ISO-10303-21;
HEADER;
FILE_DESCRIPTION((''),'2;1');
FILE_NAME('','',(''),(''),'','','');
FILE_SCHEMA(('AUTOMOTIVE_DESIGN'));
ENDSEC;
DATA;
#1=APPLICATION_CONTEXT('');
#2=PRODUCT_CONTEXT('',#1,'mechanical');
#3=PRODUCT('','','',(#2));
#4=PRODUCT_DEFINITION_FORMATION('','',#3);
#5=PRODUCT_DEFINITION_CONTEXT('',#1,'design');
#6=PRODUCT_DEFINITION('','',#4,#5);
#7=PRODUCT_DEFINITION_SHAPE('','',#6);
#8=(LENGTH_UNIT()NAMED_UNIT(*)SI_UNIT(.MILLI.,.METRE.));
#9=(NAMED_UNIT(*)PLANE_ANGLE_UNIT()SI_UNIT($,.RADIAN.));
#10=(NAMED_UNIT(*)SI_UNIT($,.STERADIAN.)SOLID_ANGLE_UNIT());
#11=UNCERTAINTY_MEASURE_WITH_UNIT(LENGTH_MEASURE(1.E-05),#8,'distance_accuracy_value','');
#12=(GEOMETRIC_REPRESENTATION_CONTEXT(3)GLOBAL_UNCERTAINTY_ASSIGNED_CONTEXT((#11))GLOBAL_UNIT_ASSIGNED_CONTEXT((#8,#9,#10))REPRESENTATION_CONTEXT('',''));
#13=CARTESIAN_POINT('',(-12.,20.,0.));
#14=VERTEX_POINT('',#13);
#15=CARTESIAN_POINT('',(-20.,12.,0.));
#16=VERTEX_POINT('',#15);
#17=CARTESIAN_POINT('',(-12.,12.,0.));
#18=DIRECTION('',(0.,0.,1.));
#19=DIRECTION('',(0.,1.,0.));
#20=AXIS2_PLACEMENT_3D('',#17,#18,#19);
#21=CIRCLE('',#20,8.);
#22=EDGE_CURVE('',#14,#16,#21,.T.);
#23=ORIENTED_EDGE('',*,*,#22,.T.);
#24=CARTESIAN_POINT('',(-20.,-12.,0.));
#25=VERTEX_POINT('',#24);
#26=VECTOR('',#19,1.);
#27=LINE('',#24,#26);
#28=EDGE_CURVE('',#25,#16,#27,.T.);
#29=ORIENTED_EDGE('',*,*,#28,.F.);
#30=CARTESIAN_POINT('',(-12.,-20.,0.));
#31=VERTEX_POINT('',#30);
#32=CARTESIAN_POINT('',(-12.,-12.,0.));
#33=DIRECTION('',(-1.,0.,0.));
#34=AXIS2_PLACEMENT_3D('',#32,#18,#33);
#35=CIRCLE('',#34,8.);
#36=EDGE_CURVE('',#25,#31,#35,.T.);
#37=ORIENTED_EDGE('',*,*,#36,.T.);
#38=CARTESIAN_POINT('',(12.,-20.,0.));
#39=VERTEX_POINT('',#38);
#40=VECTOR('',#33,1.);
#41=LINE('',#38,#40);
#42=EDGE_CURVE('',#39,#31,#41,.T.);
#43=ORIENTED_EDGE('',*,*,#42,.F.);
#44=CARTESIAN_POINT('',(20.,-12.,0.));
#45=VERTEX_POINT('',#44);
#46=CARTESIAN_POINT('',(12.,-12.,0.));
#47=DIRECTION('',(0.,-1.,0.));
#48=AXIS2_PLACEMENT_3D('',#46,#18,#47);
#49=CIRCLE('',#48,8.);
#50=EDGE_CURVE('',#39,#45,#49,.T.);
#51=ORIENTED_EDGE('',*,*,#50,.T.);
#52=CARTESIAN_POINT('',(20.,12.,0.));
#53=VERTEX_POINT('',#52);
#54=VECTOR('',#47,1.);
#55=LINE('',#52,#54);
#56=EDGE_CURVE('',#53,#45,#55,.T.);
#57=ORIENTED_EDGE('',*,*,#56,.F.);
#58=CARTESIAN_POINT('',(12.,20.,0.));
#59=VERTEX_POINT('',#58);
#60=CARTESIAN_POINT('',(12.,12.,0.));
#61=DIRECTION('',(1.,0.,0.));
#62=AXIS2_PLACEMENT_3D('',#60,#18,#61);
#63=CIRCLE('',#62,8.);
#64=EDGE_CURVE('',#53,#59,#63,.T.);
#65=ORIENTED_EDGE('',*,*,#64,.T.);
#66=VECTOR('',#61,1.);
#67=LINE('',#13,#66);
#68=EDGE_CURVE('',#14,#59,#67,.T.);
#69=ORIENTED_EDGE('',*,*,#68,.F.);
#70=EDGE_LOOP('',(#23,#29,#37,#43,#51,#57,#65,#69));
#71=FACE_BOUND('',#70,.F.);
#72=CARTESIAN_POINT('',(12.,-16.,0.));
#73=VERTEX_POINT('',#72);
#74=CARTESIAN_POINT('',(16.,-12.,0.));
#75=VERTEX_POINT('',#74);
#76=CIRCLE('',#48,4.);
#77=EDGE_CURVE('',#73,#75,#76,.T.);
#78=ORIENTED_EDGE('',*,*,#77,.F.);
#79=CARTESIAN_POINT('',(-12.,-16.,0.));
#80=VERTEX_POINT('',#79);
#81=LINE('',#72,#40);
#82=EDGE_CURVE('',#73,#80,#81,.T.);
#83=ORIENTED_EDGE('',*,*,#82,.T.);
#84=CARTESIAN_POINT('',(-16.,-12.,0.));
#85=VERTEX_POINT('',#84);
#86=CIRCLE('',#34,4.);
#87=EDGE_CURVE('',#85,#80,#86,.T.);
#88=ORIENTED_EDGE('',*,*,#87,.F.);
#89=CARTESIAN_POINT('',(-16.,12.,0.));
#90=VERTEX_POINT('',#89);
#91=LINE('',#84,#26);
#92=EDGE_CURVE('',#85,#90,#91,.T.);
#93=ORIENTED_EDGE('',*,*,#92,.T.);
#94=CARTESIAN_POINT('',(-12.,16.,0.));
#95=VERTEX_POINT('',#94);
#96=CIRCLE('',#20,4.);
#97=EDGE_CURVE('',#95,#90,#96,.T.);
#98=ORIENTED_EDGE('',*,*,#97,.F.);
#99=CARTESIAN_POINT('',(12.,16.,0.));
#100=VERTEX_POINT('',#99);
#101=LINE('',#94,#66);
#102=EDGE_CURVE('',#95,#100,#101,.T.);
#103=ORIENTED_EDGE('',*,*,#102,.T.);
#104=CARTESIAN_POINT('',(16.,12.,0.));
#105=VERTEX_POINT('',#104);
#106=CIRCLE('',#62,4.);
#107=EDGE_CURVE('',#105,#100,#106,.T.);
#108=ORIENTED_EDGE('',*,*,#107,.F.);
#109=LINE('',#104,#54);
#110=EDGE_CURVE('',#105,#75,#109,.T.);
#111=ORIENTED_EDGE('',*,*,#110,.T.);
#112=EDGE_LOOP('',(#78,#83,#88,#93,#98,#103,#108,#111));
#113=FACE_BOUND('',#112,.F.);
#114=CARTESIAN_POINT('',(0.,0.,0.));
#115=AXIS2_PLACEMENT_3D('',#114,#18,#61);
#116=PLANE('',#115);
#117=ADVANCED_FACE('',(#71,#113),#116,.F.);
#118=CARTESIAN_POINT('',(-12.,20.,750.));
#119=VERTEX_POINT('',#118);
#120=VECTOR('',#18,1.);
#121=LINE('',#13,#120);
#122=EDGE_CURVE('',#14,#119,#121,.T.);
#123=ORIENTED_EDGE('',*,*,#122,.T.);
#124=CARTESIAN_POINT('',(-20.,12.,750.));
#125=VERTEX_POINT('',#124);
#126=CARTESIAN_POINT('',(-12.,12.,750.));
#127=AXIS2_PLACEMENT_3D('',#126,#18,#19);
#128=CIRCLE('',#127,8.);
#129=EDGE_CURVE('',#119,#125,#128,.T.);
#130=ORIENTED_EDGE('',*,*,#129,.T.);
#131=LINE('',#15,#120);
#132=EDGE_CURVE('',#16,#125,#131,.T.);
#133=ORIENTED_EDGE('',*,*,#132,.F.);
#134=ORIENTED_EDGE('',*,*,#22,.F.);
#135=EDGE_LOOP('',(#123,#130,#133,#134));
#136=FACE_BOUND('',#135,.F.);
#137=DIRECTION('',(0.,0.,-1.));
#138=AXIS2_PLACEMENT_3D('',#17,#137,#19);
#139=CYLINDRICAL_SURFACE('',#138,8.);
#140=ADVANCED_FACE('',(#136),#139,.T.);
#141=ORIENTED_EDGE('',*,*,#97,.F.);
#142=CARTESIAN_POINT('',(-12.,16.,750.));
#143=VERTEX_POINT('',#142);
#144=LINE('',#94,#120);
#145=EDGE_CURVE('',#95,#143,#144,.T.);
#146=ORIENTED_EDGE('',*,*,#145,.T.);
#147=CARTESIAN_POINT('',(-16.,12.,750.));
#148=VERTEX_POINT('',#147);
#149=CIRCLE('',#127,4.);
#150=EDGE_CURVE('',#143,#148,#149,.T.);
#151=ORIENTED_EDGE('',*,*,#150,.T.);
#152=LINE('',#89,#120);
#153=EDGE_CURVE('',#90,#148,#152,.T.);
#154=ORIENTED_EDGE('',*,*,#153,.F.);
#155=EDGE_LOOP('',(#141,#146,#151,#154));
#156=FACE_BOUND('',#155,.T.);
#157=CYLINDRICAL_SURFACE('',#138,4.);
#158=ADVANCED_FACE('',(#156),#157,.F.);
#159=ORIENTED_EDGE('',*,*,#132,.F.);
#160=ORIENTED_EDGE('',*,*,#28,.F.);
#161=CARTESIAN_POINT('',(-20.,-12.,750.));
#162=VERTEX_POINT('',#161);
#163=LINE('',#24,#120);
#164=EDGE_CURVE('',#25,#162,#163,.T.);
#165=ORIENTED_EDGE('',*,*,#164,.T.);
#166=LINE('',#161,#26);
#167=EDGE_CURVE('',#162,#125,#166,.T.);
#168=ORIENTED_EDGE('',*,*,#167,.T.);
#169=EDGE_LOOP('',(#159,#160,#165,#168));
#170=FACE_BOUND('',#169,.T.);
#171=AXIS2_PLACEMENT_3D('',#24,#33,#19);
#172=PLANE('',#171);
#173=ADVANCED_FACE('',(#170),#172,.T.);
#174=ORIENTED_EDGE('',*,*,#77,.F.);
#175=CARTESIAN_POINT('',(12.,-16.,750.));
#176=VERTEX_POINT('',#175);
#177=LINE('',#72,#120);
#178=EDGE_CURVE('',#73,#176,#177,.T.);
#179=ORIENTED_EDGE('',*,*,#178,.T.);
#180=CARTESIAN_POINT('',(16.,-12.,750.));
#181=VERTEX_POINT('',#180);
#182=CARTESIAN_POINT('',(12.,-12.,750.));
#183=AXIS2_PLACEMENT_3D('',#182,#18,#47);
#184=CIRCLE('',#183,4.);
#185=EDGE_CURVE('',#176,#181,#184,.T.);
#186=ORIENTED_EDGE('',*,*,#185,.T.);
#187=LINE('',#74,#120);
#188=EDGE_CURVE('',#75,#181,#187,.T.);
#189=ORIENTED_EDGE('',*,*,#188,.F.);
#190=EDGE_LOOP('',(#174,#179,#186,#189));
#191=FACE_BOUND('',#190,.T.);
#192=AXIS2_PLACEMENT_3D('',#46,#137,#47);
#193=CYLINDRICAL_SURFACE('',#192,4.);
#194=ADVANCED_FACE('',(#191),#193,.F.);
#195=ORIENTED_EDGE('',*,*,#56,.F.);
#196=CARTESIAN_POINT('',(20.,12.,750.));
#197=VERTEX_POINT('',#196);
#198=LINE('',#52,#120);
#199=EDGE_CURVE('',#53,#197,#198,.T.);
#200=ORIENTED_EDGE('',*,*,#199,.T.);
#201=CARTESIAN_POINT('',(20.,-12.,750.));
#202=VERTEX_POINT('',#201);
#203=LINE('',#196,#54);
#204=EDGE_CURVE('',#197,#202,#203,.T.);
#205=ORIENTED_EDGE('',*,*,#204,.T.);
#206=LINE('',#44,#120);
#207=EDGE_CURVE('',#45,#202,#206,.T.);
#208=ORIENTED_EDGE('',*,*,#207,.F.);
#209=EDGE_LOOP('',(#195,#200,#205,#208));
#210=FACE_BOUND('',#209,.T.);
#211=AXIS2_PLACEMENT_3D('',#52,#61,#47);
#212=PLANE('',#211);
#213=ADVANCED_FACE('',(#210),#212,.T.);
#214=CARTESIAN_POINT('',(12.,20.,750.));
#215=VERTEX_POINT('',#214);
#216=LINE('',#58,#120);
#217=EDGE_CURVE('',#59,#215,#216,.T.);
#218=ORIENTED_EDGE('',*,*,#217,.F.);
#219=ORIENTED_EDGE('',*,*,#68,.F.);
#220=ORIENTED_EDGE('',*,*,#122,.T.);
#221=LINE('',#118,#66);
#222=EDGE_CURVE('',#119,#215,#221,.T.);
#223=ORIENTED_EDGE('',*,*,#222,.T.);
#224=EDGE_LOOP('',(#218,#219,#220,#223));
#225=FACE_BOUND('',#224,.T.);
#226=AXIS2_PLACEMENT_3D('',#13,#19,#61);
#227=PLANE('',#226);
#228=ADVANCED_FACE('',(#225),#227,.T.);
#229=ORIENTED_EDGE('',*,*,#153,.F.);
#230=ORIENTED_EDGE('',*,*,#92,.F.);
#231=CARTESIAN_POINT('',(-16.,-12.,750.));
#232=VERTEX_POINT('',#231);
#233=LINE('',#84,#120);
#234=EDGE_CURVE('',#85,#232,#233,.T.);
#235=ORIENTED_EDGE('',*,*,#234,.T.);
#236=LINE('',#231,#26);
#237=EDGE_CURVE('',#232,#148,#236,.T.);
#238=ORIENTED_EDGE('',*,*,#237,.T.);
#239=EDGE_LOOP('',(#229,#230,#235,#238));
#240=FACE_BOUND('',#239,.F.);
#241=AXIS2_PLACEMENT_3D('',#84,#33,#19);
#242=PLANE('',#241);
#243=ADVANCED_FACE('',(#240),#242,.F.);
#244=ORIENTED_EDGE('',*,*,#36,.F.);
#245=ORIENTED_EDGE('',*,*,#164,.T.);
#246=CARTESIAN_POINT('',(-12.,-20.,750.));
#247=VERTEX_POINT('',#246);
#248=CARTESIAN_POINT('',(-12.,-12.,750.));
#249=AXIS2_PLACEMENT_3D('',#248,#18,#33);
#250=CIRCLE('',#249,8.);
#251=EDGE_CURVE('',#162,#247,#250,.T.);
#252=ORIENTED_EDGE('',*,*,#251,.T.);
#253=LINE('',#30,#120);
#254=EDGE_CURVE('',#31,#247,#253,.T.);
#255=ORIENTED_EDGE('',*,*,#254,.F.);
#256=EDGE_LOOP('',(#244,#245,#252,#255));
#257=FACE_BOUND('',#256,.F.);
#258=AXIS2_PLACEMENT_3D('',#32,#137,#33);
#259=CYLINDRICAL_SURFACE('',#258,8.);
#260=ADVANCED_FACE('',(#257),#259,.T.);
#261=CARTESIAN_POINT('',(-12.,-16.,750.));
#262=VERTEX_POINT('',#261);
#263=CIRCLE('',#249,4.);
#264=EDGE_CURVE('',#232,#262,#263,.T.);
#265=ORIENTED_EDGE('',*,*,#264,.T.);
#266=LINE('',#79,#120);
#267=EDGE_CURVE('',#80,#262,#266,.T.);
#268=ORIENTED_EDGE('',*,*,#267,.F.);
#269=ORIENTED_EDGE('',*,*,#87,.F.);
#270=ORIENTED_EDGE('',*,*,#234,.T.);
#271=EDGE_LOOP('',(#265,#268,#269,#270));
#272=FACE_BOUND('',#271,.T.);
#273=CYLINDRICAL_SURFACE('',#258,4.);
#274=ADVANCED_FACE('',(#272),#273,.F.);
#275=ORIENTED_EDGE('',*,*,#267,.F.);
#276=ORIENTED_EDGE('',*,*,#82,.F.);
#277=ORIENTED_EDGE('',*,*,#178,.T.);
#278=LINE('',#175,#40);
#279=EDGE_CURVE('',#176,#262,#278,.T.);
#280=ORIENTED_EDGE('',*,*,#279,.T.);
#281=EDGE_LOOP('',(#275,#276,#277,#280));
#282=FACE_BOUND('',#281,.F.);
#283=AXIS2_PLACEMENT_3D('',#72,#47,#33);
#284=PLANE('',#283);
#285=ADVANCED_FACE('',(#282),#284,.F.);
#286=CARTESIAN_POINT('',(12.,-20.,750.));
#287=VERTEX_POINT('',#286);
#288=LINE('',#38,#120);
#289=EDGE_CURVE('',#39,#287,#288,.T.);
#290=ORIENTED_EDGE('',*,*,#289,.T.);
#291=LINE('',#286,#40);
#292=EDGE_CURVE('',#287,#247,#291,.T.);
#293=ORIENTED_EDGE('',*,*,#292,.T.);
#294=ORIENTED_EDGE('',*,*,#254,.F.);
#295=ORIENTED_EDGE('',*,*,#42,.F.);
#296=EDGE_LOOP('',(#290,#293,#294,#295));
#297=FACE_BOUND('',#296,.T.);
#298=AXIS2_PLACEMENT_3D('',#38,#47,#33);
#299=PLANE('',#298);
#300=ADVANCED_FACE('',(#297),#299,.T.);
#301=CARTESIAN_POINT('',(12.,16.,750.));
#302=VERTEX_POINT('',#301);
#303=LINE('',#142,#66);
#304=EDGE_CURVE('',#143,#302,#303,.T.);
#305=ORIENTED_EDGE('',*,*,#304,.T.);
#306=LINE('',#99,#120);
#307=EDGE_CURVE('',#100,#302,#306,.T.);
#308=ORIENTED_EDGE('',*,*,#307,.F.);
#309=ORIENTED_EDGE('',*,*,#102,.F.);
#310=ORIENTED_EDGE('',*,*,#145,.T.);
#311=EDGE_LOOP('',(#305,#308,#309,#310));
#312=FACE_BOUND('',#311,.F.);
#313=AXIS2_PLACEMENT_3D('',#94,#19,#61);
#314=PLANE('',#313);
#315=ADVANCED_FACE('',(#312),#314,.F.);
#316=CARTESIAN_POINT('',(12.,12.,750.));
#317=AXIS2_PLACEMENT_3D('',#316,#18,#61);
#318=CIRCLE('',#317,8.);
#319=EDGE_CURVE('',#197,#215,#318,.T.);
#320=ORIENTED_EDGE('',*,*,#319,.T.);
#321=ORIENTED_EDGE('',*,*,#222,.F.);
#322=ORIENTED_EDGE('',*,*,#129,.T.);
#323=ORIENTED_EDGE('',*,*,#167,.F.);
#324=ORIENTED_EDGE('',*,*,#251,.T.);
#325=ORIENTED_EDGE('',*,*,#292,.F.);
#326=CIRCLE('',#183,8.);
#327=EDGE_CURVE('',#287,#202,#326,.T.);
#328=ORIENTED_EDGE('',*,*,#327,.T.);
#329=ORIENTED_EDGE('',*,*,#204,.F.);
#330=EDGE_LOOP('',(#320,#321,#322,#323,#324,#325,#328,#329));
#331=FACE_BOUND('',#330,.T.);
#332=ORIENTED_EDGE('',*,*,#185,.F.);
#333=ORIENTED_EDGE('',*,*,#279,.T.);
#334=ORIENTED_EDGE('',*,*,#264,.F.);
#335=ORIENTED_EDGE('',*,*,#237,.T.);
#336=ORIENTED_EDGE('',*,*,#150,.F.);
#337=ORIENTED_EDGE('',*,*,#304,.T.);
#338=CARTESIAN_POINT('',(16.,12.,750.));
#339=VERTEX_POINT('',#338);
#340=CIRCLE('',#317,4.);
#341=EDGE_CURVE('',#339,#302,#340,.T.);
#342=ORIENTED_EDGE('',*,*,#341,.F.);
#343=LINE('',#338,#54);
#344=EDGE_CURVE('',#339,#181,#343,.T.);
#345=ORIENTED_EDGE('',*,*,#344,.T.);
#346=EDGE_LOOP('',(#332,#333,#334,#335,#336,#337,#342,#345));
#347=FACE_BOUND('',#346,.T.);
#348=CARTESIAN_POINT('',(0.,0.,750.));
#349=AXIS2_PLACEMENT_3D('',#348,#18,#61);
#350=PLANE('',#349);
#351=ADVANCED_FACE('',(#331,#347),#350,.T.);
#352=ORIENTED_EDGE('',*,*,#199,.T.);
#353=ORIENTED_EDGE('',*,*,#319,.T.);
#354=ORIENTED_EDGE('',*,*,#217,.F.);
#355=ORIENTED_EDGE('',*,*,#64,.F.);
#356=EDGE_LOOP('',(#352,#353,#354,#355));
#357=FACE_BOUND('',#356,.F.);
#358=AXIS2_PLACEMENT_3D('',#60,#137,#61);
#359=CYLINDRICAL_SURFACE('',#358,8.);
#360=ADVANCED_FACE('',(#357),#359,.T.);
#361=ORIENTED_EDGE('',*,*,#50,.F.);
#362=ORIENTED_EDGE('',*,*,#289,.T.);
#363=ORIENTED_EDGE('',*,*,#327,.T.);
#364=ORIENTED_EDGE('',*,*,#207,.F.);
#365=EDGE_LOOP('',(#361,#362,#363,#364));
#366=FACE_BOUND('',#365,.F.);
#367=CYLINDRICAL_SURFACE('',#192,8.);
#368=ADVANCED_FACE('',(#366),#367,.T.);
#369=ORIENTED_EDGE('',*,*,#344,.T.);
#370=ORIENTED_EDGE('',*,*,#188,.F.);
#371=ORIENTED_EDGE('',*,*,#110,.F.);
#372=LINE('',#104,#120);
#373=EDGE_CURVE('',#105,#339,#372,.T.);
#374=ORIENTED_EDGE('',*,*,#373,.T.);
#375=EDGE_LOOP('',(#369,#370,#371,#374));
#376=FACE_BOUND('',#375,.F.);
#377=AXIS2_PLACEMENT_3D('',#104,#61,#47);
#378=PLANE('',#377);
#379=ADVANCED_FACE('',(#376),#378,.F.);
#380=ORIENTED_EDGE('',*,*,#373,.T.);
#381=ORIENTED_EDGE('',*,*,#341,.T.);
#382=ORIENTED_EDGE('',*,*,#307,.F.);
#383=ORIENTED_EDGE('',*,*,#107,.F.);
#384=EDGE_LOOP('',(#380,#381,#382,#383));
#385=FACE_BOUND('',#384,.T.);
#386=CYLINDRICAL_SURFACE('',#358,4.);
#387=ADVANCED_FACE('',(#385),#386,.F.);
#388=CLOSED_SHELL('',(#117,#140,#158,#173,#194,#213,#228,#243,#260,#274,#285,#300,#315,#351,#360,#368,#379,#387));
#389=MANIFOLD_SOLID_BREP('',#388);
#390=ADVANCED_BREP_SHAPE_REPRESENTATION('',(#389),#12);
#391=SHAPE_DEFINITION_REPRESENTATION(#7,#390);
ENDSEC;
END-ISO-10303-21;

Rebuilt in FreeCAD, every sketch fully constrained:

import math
import FreeCAD as App
import Part
import Sketcher
Q = App.Units.Quantity

doc = App.newDocument("Part")
body = doc.addObject("PartDesign::Body", "Body")

sketch1 = body.newObject("Sketcher::SketchObject", "Sketch")
sketch1.AttachmentSupport = (doc.getObject("XY_Plane"), [""])
sketch1.MapMode = "FlatFace"
sketch1.addGeometry([
    Part.LineSegment(App.Vector(-20, 12, 0), App.Vector(-20, -12, 0)),
    Part.ArcOfCircle(Part.Circle(App.Vector(-12, -12, 0), App.Vector(0, 0, 1), 8), math.radians(180), math.radians(270)),
    Part.LineSegment(App.Vector(-12, -20, 0), App.Vector(12, -20, 0)),
    Part.ArcOfCircle(Part.Circle(App.Vector(12, -12, 0), App.Vector(0, 0, 1), 8), math.radians(-90), math.radians(0)),
    Part.LineSegment(App.Vector(20, -12, 0), App.Vector(20, 12, 0)),
    Part.ArcOfCircle(Part.Circle(App.Vector(12, 12, 0), App.Vector(0, 0, 1), 8), math.radians(0), math.radians(90)),
    Part.LineSegment(App.Vector(12, 20, 0), App.Vector(-12, 20, 0)),
    Part.ArcOfCircle(Part.Circle(App.Vector(-12, 12, 0), App.Vector(0, 0, 1), 8), math.radians(90), math.radians(180)),
    Part.ArcOfCircle(Part.Circle(App.Vector(-12, 12, 0), App.Vector(0, 0, 1), 4), math.radians(90), math.radians(180)),
    Part.LineSegment(App.Vector(-12, 16, 0), App.Vector(12, 16, 0)),
    Part.ArcOfCircle(Part.Circle(App.Vector(12, 12, 0), App.Vector(0, 0, 1), 4), math.radians(0), math.radians(90)),
    Part.LineSegment(App.Vector(16, 12, 0), App.Vector(16, -12, 0)),
    Part.ArcOfCircle(Part.Circle(App.Vector(12, -12, 0), App.Vector(0, 0, 1), 4), math.radians(-90), math.radians(0)),
    Part.LineSegment(App.Vector(12, -16, 0), App.Vector(-12, -16, 0)),
    Part.ArcOfCircle(Part.Circle(App.Vector(-12, -12, 0), App.Vector(0, 0, 1), 4), math.radians(180), math.radians(270)),
    Part.LineSegment(App.Vector(-16, -12, 0), App.Vector(-16, 12, 0)),
], False)
sketch1.addConstraint([
    Sketcher.Constraint("Tangent", 0, 2, 1, 1),
    Sketcher.Constraint("Tangent", 1, 2, 2, 1),
    Sketcher.Constraint("Tangent", 2, 2, 3, 1),
    Sketcher.Constraint("Tangent", 3, 2, 4, 1),
    Sketcher.Constraint("Tangent", 4, 2, 5, 1),
    Sketcher.Constraint("Tangent", 5, 2, 6, 1),
    Sketcher.Constraint("Tangent", 6, 2, 7, 1),
    Sketcher.Constraint("Tangent", 7, 2, 0, 1),
    Sketcher.Constraint("Tangent", 8, 1, 9, 1),
    Sketcher.Constraint("Tangent", 9, 2, 10, 2),
    Sketcher.Constraint("Tangent", 10, 1, 11, 1),
    Sketcher.Constraint("Tangent", 11, 2, 12, 2),
    Sketcher.Constraint("Tangent", 12, 1, 13, 1),
    Sketcher.Constraint("Tangent", 13, 2, 14, 2),
    Sketcher.Constraint("Tangent", 14, 1, 15, 1),
    Sketcher.Constraint("Tangent", 15, 2, 8, 2),
    Sketcher.Constraint("Vertical", 0),
    Sketcher.Constraint("Horizontal", 2),
    Sketcher.Constraint("Vertical", 4),
    Sketcher.Constraint("Horizontal", 6),
    Sketcher.Constraint("Horizontal", 9),
    Sketcher.Constraint("Vertical", 11),
    Sketcher.Constraint("Horizontal", 13),
    Sketcher.Constraint("Vertical", 15),
    Sketcher.Constraint("Coincident", 8, 3, 7, 3),
    Sketcher.Constraint("Coincident", 10, 3, 5, 3),
    Sketcher.Constraint("Coincident", 12, 3, 3, 3),
    Sketcher.Constraint("Equal", 1, 3),
    Sketcher.Constraint("Equal", 3, 5),
    Sketcher.Constraint("Equal", 5, 7),
    Sketcher.Constraint("Equal", 12, 14),
    Sketcher.Constraint("Symmetric", 1, 3, 5, 3, -1, 1),
    Sketcher.Constraint("Equal", 13, 0),
    Sketcher.Constraint("Radius", 1, Q("8 mm")),
    Sketcher.Constraint("Radius", 8, Q("4 mm")),
    Sketcher.Constraint("DistanceX", 0, 2, -1, 1, Q("20 mm")),
])
pad1 = body.newObject("PartDesign::Pad", "Pad")
pad1.Profile = sketch1
pad1.Length = 750

doc.recompute()
